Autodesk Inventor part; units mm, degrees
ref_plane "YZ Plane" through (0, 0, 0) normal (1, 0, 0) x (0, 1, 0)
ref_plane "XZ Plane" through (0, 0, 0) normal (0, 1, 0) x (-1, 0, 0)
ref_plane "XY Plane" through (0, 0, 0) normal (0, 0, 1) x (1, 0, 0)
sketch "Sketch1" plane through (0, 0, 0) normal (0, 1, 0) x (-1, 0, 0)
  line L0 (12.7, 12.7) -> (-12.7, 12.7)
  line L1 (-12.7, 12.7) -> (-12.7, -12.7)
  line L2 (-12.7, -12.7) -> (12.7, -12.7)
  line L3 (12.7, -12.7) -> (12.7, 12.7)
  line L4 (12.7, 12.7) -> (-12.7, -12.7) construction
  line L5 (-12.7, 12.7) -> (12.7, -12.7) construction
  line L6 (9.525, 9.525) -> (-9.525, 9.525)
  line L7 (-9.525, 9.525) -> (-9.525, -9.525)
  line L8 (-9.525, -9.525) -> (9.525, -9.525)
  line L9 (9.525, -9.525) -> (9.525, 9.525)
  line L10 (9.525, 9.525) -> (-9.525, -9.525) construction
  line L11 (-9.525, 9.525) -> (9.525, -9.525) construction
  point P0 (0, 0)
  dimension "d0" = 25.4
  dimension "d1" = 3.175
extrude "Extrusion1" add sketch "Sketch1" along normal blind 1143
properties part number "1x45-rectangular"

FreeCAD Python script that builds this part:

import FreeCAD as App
import Part
import Sketcher
Q = App.Units.Quantity

doc = App.newDocument("Part")
body = doc.addObject("PartDesign::Body", "Body")

# Sketch on XZ plane
sketch1 = body.newObject("Sketcher::SketchObject", "Sketch")
sketch1.AttachmentSupport = (doc.getObject("XZ_Plane"), [""])
sketch1.MapMode = "FlatFace"
sketch1.addGeometry(Part.LineSegment(App.Vector(-13, -13, 0), App.Vector(-13, 13, 0)), False)
sketch1.addGeometry(Part.LineSegment(App.Vector(-13, 13, 0), App.Vector(13, 13, 0)), False)
sketch1.addGeometry(Part.LineSegment(App.Vector(13, 13, 0), App.Vector(13, -13, 0)), False)
sketch1.addGeometry(Part.LineSegment(App.Vector(13, -13, 0), App.Vector(-13, -13, 0)), False)
sketch1.addGeometry(Part.LineSegment(App.Vector(10, 10, 0), App.Vector(-10, 10, 0)), False)
sketch1.addGeometry(Part.LineSegment(App.Vector(-10, 10, 0), App.Vector(-10, -10, 0)), False)
sketch1.addGeometry(Part.LineSegment(App.Vector(-10, -10, 0), App.Vector(10, -10, 0)), False)
sketch1.addGeometry(Part.LineSegment(App.Vector(10, -10, 0), App.Vector(10, 10, 0)), False)
sketch1.addConstraint(Sketcher.Constraint("Coincident", 0, 2, 1, 1))
sketch1.addConstraint(Sketcher.Constraint("Coincident", 1, 2, 2, 1))
sketch1.addConstraint(Sketcher.Constraint("Coincident", 2, 2, 3, 1))
sketch1.addConstraint(Sketcher.Constraint("Coincident", 3, 2, 0, 1))
sketch1.addConstraint(Sketcher.Constraint("Coincident", 4, 2, 5, 1))
sketch1.addConstraint(Sketcher.Constraint("Coincident", 5, 2, 6, 1))
sketch1.addConstraint(Sketcher.Constraint("Coincident", 6, 2, 7, 1))
sketch1.addConstraint(Sketcher.Constraint("Coincident", 7, 2, 4, 1))
sketch1.addConstraint(Sketcher.Constraint("Vertical", 0))
sketch1.addConstraint(Sketcher.Constraint("Horizontal", 1))
sketch1.addConstraint(Sketcher.Constraint("Vertical", 2))
sketch1.addConstraint(Sketcher.Constraint("Horizontal", 3))
sketch1.addConstraint(Sketcher.Constraint("Horizontal", 4))
sketch1.addConstraint(Sketcher.Constraint("Vertical", 5))
sketch1.addConstraint(Sketcher.Constraint("Horizontal", 6))
sketch1.addConstraint(Sketcher.Constraint("Vertical", 7))
sketch1.addConstraint(Sketcher.Constraint("Symmetric", 0, 2, 2, 2, -1, 1))
sketch1.addConstraint(Sketcher.Constraint("Symmetric", 4, 2, 6, 2, -1, 1))
sketch1.addConstraint(Sketcher.Constraint("Equal", 3, 0))
sketch1.addConstraint(Sketcher.Constraint("Equal", 6, 5))
sketch1.addConstraint(Sketcher.Constraint("DistanceX", 1, 1, 1, 2, Q("1 in")))
sketch1.addConstraint(Sketcher.Constraint("DistanceX", 0, 2, 4, 2, Q("0.125 in")))
pad1 = body.newObject("PartDesign::Pad", "Pad")
pad1.Profile = sketch1
pad1.Length = Q("45 in")
pad1.Reversed = True

doc.recompute()
